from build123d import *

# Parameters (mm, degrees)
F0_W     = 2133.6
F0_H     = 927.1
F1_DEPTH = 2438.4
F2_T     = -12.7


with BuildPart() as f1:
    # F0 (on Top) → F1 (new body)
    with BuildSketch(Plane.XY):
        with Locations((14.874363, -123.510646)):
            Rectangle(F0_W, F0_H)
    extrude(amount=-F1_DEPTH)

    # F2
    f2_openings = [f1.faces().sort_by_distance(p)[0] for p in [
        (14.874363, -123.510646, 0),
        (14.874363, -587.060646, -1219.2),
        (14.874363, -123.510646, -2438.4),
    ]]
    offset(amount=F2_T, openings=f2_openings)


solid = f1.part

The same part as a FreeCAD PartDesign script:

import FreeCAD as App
import Part
import Sketcher
from FreeCAD import Vector
Q = App.Units.Quantity


def faces_at(feature, points):
    """Names of the faces that lie closest to the given points."""
    faces = feature.Shape.Faces
    near = lambda p: min(range(len(faces)), key=lambda i: faces[i].distToShape(Part.Vertex(*p))[0])
    return sorted({f"Face{near(p) + 1}" for p in points})

doc = App.newDocument("Part")
body = doc.addObject("PartDesign::Body", "Body")

sketch1 = body.newObject("Sketcher::SketchObject", "Sketch")
sketch1.AttachmentSupport = (doc.getObject("XY_Plane"), [""])
sketch1.MapMode = "FlatFace"
sketch1.addGeometry([
    Part.LineSegment(Vector(-1052, 340, 0), Vector(-1052, -587, 0)),
    Part.LineSegment(Vector(-1052, -587, 0), Vector(1082, -587, 0)),
    Part.LineSegment(Vector(1082, -587, 0), Vector(1082, 340, 0)),
    Part.LineSegment(Vector(1082, 340, 0), Vector(-1052, 340, 0)),
], False)
sketch1.addConstraint([
    Sketcher.Constraint("Coincident", 0, 2, 1, 1),
    Sketcher.Constraint("Coincident", 1, 2, 2, 1),
    Sketcher.Constraint("Coincident", 2, 2, 3, 1),
    Sketcher.Constraint("Coincident", 3, 2, 0, 1),
    Sketcher.Constraint("Vertical", 0),
    Sketcher.Constraint("Horizontal", 1),
    Sketcher.Constraint("Vertical", 2),
    Sketcher.Constraint("Horizontal", 3),
    Sketcher.Constraint("DistanceX", 1, 1, 1, 2, Q("84 in")),
    Sketcher.Constraint("DistanceY", 0, 2, 0, 1, Q("36.5 in")),
    Sketcher.Constraint("DistanceX", 0, 2, -1, 1, Q("1051.925637 mm")),
    Sketcher.Constraint("DistanceY", 0, 2, -1, 1, Q("587.060646 mm")),
])
pad1 = body.newObject("PartDesign::Pad", "Pad")
pad1.Profile = sketch1
pad1.Length = Q("96 in")
pad1.Reversed = True
doc.recompute()

thickness = body.newObject("PartDesign::Thickness", "Thickness")
thickness.Base = (pad1, faces_at(pad1, [(14.874, -123.511, 0), (14.874, -587.061, -1219.2), (14.874, -123.511, -2438.4)]))
thickness.Value = Q("0.5 in")
thickness.Reversed = True
thickness.Join = "Arc"

doc.recompute()
